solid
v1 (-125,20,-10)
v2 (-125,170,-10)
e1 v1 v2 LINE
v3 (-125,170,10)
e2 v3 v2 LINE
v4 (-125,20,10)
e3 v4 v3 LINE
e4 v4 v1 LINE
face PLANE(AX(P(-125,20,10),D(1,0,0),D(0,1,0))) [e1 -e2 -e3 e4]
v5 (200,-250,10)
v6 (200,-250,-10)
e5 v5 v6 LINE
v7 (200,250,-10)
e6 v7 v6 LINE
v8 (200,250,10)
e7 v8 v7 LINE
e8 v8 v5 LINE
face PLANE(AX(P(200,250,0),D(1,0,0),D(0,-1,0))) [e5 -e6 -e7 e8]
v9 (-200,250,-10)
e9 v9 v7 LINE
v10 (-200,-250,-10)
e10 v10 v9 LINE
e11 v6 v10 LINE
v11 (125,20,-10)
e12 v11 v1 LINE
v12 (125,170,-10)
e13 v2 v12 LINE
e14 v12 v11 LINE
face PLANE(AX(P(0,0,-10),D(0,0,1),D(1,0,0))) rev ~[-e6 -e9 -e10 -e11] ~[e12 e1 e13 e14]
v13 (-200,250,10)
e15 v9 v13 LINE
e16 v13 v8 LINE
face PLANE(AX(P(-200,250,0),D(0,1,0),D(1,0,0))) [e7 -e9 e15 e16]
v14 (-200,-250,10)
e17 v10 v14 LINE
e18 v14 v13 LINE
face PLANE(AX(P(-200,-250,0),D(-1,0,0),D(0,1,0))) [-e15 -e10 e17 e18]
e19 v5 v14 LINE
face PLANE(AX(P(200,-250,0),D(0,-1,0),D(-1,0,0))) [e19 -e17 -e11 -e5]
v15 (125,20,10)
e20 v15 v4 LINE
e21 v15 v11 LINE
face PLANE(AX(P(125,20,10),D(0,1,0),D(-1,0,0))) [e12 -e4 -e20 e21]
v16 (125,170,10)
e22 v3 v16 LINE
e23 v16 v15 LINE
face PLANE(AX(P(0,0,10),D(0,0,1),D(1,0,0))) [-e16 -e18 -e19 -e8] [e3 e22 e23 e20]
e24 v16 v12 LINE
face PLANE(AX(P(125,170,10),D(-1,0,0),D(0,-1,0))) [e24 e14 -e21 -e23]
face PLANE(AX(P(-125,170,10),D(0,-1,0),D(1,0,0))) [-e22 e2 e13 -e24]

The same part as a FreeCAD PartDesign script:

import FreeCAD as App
import Part
import Sketcher

V = App.Vector


def add_polygon(sketch, points):
    """Adds a closed chain of lines whose ends are joined by coincident constraints."""
    first, n = sketch.GeometryCount, len(points)
    for a, b in zip(points, points[1:] + points[:1]):
        sketch.addGeometry(Part.LineSegment(App.Vector(*a, 0), App.Vector(*b, 0)), False)
    for i in range(n):
        sketch.addConstraint(Sketcher.Constraint("Coincident", first + i, 2, first + (i + 1) % n, 1))

doc = App.newDocument("Part")
params = doc.addObject("Spreadsheet::Sheet", "Params")
for row, (alias, value) in enumerate([
    ("sketch1_width", "400 mm"),
    ("sketch1_height", "500 mm"),
    ("pad1_length", "20 mm"),
    ("sketch2_width", "250 mm"),
    ("sketch2_height", "150 mm"),
    ("pocket1_length", "20 mm"),
], start=1):
    params.set(f"A{row}", alias)
    params.set(f"B{row}", "=" + value)
    params.setAlias(f"B{row}", alias)

body = doc.addObject("PartDesign::Body", "Body")

# Sketch on XY plane
sketch1 = body.newObject("Sketcher::SketchObject", "Sketch")
sketch1.AttachmentSupport = (doc.getObject("XY_Plane"), [""])
sketch1.MapMode = "FlatFace"
add_polygon(sketch1, [(200, 250), (-200, 250), (-200, -250), (200, -250)])  # lines 0-3
sketch1.addConstraint(Sketcher.Constraint("Horizontal", 0))
sketch1.addConstraint(Sketcher.Constraint("Vertical", 1))
sketch1.addConstraint(Sketcher.Constraint("Horizontal", 2))
sketch1.addConstraint(Sketcher.Constraint("Vertical", 3))
sketch1.addConstraint(Sketcher.Constraint("Symmetric", 0, 2, 2, 2, -1, 1))
sketch1.addConstraint(Sketcher.Constraint("DistanceX", 0, 2, 0, 1, 400.0))
sketch1.addConstraint(Sketcher.Constraint("DistanceY", 1, 2, 1, 1, 500.0))
sketch1.setExpression("Constraints[9]", "Params.sketch1_width")
sketch1.setExpression("Constraints[10]", "Params.sketch1_height")
pad1 = body.newObject("PartDesign::Pad", "Pad")
pad1.Profile = sketch1
pad1.setExpression("Length", "Params.pad1_length")
pad1.Midplane = True

# Sketch on XY plane
sketch2 = body.newObject("Sketcher::SketchObject", "Sketch001")
sketch2.AttachmentSupport = (doc.getObject("XY_Plane"), [""])
sketch2.MapMode = "FlatFace"
sketch2.AttachmentOffset = App.Placement(V(0, 0, 10), App.Rotation())
add_polygon(sketch2, [(125, 170), (-125, 170), (-125, 20), (125, 20)])  # lines 0-3
sketch2.addConstraint(Sketcher.Constraint("Horizontal", 0))
sketch2.addConstraint(Sketcher.Constraint("Vertical", 1))
sketch2.addConstraint(Sketcher.Constraint("Horizontal", 2))
sketch2.addConstraint(Sketcher.Constraint("Vertical", 3))
sketch2.addConstraint(Sketcher.Constraint("DistanceX", 0, 2, 0, 1, 250.0))
sketch2.addConstraint(Sketcher.Constraint("DistanceY", 1, 2, 1, 1, 150.0))
sketch2.addConstraint(Sketcher.Constraint("DistanceX", 0, 2, -1, 1, 125.0))
sketch2.addConstraint(Sketcher.Constraint("DistanceY", -1, 1, 0, 2, 170.0))
sketch2.setExpression("Constraints[8]", "Params.sketch2_width")
sketch2.setExpression("Constraints[9]", "Params.sketch2_height")
pocket1 = body.newObject("PartDesign::Pocket", "Pocket")
pocket1.Profile = sketch2
pocket1.setExpression("Length", "Params.pocket1_length")

doc.recompute()
